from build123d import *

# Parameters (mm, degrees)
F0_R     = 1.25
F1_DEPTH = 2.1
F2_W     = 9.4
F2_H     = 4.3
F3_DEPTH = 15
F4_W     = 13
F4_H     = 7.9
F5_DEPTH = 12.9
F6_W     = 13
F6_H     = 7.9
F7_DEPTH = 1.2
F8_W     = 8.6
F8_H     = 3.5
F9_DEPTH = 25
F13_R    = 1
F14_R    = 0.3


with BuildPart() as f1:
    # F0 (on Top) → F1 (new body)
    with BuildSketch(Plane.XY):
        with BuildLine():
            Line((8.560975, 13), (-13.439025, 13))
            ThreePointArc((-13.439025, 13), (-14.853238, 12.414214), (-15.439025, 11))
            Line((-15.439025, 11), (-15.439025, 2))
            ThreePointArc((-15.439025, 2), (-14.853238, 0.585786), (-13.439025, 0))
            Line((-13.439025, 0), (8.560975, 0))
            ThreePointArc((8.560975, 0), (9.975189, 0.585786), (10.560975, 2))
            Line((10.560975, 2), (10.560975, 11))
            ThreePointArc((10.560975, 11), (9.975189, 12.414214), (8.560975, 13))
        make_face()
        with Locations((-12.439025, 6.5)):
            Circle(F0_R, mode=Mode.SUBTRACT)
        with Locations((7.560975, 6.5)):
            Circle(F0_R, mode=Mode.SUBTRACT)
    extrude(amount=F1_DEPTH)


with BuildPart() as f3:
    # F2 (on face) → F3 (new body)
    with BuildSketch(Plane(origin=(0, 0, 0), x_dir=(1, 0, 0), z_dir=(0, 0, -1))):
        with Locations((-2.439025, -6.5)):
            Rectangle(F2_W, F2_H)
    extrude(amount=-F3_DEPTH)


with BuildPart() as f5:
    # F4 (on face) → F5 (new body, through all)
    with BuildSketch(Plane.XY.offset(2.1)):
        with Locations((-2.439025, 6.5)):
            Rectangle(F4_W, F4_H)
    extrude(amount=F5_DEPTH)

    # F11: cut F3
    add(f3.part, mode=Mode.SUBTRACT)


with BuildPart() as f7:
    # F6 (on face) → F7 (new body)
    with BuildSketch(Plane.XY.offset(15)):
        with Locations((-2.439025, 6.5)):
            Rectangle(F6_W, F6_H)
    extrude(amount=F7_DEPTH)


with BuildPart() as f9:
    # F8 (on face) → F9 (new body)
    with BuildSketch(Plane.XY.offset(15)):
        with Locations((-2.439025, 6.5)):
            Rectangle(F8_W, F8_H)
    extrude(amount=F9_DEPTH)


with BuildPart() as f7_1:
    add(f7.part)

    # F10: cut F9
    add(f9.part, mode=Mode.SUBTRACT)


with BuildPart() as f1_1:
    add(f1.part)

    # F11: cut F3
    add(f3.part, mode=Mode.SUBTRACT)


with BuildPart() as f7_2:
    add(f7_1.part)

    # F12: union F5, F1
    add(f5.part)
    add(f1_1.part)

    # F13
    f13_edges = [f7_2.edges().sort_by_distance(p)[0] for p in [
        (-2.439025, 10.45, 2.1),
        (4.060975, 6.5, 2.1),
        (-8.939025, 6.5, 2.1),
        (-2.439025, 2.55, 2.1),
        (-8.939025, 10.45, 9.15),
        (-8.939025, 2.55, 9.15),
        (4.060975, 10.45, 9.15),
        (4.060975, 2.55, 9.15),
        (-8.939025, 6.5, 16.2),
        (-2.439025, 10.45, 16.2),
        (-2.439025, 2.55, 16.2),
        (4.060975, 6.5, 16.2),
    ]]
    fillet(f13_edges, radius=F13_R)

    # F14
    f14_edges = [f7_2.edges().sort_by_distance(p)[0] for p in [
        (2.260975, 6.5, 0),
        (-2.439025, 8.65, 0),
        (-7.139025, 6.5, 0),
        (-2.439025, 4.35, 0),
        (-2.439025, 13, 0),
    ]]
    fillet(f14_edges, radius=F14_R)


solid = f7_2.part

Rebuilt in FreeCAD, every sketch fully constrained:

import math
import FreeCAD as App
import Part
import Sketcher
from FreeCAD import Vector
Q = App.Units.Quantity


def edges_at(feature, points):
    """Names of the edges that pass closest to the given points."""
    edges = feature.Shape.Edges
    near = lambda p: min(range(len(edges)), key=lambda i: edges[i].distToShape(Part.Vertex(*p))[0])
    return sorted({f"Edge{near(p) + 1}" for p in points})

doc = App.newDocument("Part")
params = doc.addObject("Spreadsheet::Sheet", "Params")
for row, (alias, value) in enumerate([
    ("sketch1_radius", "2 mm"),
    ("sketch1_diameter", "2.5 mm"),
    ("sketch1_width", "22 mm"),
    ("sketch1_height", "9 mm"),
    ("pad1_length", "2.1 mm"),
    ("sketch2_width", "9.4 mm"),
    ("sketch2_height", "4.3 mm"),
    ("pad2_length", "15 mm"),
    ("sketch3_width", "13 mm"),
    ("sketch3_height", "7.9 mm"),
    ("pad3_length", "12.9 mm"),
    ("sketch4_width", "13 mm"),
    ("sketch4_height", "7.9 mm"),
    ("pad4_length", "1.2 mm"),
    ("sketch5_width", "8.6 mm"),
    ("sketch5_height", "3.5 mm"),
    ("pad5_length", "25 mm"),
    ("fillet_radius", "1 mm"),
    ("fillet2_radius", "0.3 mm"),
], start=1):
    params.set(f"A{row}", alias)
    params.set(f"B{row}", "=" + value)
    params.setAlias(f"B{row}", alias)

body = doc.addObject("PartDesign::Body", "Body")

# Sketch on XY plane
sketch1 = body.newObject("Sketcher::SketchObject", "Sketch")
sketch1.AttachmentSupport = (doc.getObject("XY_Plane"), [""])
sketch1.MapMode = "FlatFace"
sketch1.addGeometry(Part.LineSegment(Vector(8.560975, 13, 0), Vector(-13.439025, 13, 0)), False)
sketch1.addGeometry(Part.ArcOfCircle(Part.Circle(Vector(-13.439025, 11, 0), Vector(0, 0, 1), 2), math.radians(90.000006), math.radians(179.999994)), False)
sketch1.addGeometry(Part.LineSegment(Vector(-15.439025, 11, 0), Vector(-15.439025, 2, 0)), False)
sketch1.addGeometry(Part.ArcOfCircle(Part.Circle(Vector(-13.439025, 2, 0), Vector(0, 0, 1), 2), math.radians(-179.999994), math.radians(-90.000006)), False)
sketch1.addGeometry(Part.LineSegment(Vector(-13.439025, 0, 0), Vector(8.560975, 0, 0)), False)
sketch1.addGeometry(Part.ArcOfCircle(Part.Circle(Vector(8.560976, 1.999999, 0), Vector(0, 0, 1), 1.999999), math.radians(-90.000043), math.radians(0.000043)), False)
sketch1.addGeometry(Part.LineSegment(Vector(10.560975, 2, 0), Vector(10.560975, 11, 0)), False)
sketch1.addGeometry(Part.ArcOfCircle(Part.Circle(Vector(8.560976, 11.000001, 0), Vector(0, 0, 1), 1.999999), math.radians(-0.000043), math.radians(90.000043)), False)
sketch1.addGeometry(Part.Circle(Vector(-12.439025, 6.5, 0), Vector(0, 0, 1), 1.25), False)
sketch1.addGeometry(Part.Circle(Vector(7.560975, 6.5, 0), Vector(0, 0, 1), 1.25), False)
sketch1.addConstraint(Sketcher.Constraint("Tangent", 0, 2, 1, 1))
sketch1.addConstraint(Sketcher.Constraint("Tangent", 1, 2, 2, 1))
sketch1.addConstraint(Sketcher.Constraint("Tangent", 2, 2, 3, 1))
sketch1.addConstraint(Sketcher.Constraint("Tangent", 3, 2, 4, 1))
sketch1.addConstraint(Sketcher.Constraint("Tangent", 4, 2, 5, 1))
sketch1.addConstraint(Sketcher.Constraint("Tangent", 5, 2, 6, 1))
sketch1.addConstraint(Sketcher.Constraint("Tangent", 6, 2, 7, 1))
sketch1.addConstraint(Sketcher.Constraint("Tangent", 7, 2, 0, 1))
sketch1.addConstraint(Sketcher.Constraint("Horizontal", 0))
sketch1.addConstraint(Sketcher.Constraint("Vertical", 2))
sketch1.addConstraint(Sketcher.Constraint("Horizontal", 4))
sketch1.addConstraint(Sketcher.Constraint("Vertical", 6))
sketch1.addConstraint(Sketcher.Constraint("Equal", 1, 3))
sketch1.addConstraint(Sketcher.Constraint("Equal", 3, 5))
sketch1.addConstraint(Sketcher.Constraint("Equal", 5, 7))
sketch1.addConstraint(Sketcher.Constraint("Equal", 8, 9))
sketch1.addConstraint(Sketcher.Constraint("PointOnObject", 3, 2, -1))
sketch1.addConstraint(Sketcher.Constraint("Horizontal", 8, 3, 9, 3))
sketch1.addConstraint(Sketcher.Constraint("Radius", 1, Q("2 mm")))
sketch1.addConstraint(Sketcher.Constraint("Diameter", 8, Q("2.5 mm")))
sketch1.addConstraint(Sketcher.Constraint("DistanceX", 0, 2, 0, 1, Q("22 mm")))
sketch1.addConstraint(Sketcher.Constraint("DistanceY", 2, 2, 2, 1, Q("9 mm")))
sketch1.addConstraint(Sketcher.Constraint("DistanceX", 1, 3, 8, 3, Q("1 mm")))
sketch1.addConstraint(Sketcher.Constraint("DistanceX", 9, 3, 7, 3, Q("1.000001 mm")))
sketch1.addConstraint(Sketcher.Constraint("DistanceY", -1, 1, 8, 3, Q("6.5 mm")))
sketch1.addConstraint(Sketcher.Constraint("DistanceX", 1, 3, -1, 1, Q("13.439025 mm")))
sketch1.setExpression("Constraints[18]", "Params.sketch1_radius")
sketch1.setExpression("Constraints[19]", "Params.sketch1_diameter")
sketch1.setExpression("Constraints[20]", "Params.sketch1_width")
sketch1.setExpression("Constraints[21]", "Params.sketch1_height")
pad1 = body.newObject("PartDesign::Pad", "Pad")
pad1.Profile = sketch1
pad1.setExpression("Length", "Params.pad1_length")
body2 = doc.addObject("PartDesign::Body", "Body001")

# Sketch on XY plane
sketch2 = body2.newObject("Sketcher::SketchObject", "Sketch001")
sketch2.AttachmentSupport = (doc.getObject("XY_Plane001"), [""])
sketch2.MapMode = "FlatFace"
sketch2.addGeometry(Part.LineSegment(Vector(-7.139025, 4.35, 0), Vector(-7.139025, 8.65, 0)), False)
sketch2.addGeometry(Part.LineSegment(Vector(-7.139025, 8.65, 0), Vector(2.260975, 8.65, 0)), False)
sketch2.addGeometry(Part.LineSegment(Vector(2.260975, 8.65, 0), Vector(2.260975, 4.35, 0)), False)
sketch2.addGeometry(Part.LineSegment(Vector(2.260975, 4.35, 0), Vector(-7.139025, 4.35, 0)), False)
sketch2.addConstraint(Sketcher.Constraint("Coincident", 0, 2, 1, 1))
sketch2.addConstraint(Sketcher.Constraint("Coincident", 1, 2, 2, 1))
sketch2.addConstraint(Sketcher.Constraint("Coincident", 2, 2, 3, 1))
sketch2.addConstraint(Sketcher.Constraint("Coincident", 3, 2, 0, 1))
sketch2.addConstraint(Sketcher.Constraint("Vertical", 0))
sketch2.addConstraint(Sketcher.Constraint("Horizontal", 1))
sketch2.addConstraint(Sketcher.Constraint("Vertical", 2))
sketch2.addConstraint(Sketcher.Constraint("Horizontal", 3))
sketch2.addConstraint(Sketcher.Constraint("DistanceX", 1, 1, 1, 2, Q("9.4 mm")))
sketch2.addConstraint(Sketcher.Constraint("DistanceY", 0, 1, 0, 2, Q("4.3 mm")))
sketch2.addConstraint(Sketcher.Constraint("DistanceY", -1, 1, 0, 2, Q("8.65 mm")))
sketch2.addConstraint(Sketcher.Constraint("DistanceX", 0, 2, -1, 1, Q("7.139025 mm")))
sketch2.setExpression("Constraints[8]", "Params.sketch2_width")
sketch2.setExpression("Constraints[9]", "Params.sketch2_height")
pad2 = body2.newObject("PartDesign::Pad", "Pad001")
pad2.Profile = sketch2
pad2.setExpression("Length", "Params.pad2_length")
body3 = doc.addObject("PartDesign::Body", "Body002")

# Sketch on XY plane
sketch3 = body3.newObject("Sketcher::SketchObject", "Sketch002")
sketch3.AttachmentSupport = (doc.getObject("XY_Plane002"), [""])
sketch3.MapMode = "FlatFace"
sketch3.AttachmentOffset = App.Placement(Vector(0, 0, 2.1), App.Rotation())
sketch3.addGeometry(Part.LineSegment(Vector(-8.939025, 10.45, 0), Vector(-8.939025, 2.55, 0)), False)
sketch3.addGeometry(Part.LineSegment(Vector(-8.939025, 2.55, 0), Vector(4.060975, 2.55, 0)), False)
sketch3.addGeometry(Part.LineSegment(Vector(4.060975, 2.55, 0), Vector(4.060975, 10.45, 0)), False)
sketch3.addGeometry(Part.LineSegment(Vector(4.060975, 10.45, 0), Vector(-8.939025, 10.45, 0)), False)
sketch3.addConstraint(Sketcher.Constraint("Coincident", 0, 2, 1, 1))
sketch3.addConstraint(Sketcher.Constraint("Coincident", 1, 2, 2, 1))
sketch3.addConstraint(Sketcher.Constraint("Coincident", 2, 2, 3, 1))
sketch3.addConstraint(Sketcher.Constraint("Coincident", 3, 2, 0, 1))
sketch3.addConstraint(Sketcher.Constraint("Vertical", 0))
sketch3.addConstraint(Sketcher.Constraint("Horizontal", 1))
sketch3.addConstraint(Sketcher.Constraint("Vertical", 2))
sketch3.addConstraint(Sketcher.Constraint("Horizontal", 3))
sketch3.addConstraint(Sketcher.Constraint("DistanceX", 1, 1, 1, 2, Q("13 mm")))
sketch3.addConstraint(Sketcher.Constraint("DistanceY", 0, 2, 0, 1, Q("7.9 mm")))
sketch3.addConstraint(Sketcher.Constraint("DistanceY", -1, 1, 0, 2, Q("2.55 mm")))
sketch3.addConstraint(Sketcher.Constraint("DistanceX", 0, 2, -1, 1, Q("8.939025 mm")))
sketch3.setExpression("Constraints[8]", "Params.sketch3_width")
sketch3.setExpression("Constraints[9]", "Params.sketch3_height")
pad3 = body3.newObject("PartDesign::Pad", "Pad002")
pad3.Profile = sketch3
pad3.setExpression("Length", "Params.pad3_length")
doc.recompute()

body4 = doc.addObject("PartDesign::Body", "Body003")
body4.BaseFeature = body2
boolean = body3.newObject("PartDesign::Boolean", "Boolean")
boolean.Type = "Cut"
boolean.addObjects([body4])
doc.recompute()
body5 = doc.addObject("PartDesign::Body", "Body004")

# Sketch on XY plane
sketch4 = body5.newObject("Sketcher::SketchObject", "Sketch003")
sketch4.AttachmentSupport = (doc.getObject("XY_Plane004"), [""])
sketch4.MapMode = "FlatFace"
sketch4.AttachmentOffset = App.Placement(Vector(0, 0, 15), App.Rotation())
sketch4.addGeometry(Part.LineSegment(Vector(-8.939025, 10.45, 0), Vector(-8.939025, 2.55, 0)), False)
sketch4.addGeometry(Part.LineSegment(Vector(-8.939025, 2.55, 0), Vector(4.060975, 2.55, 0)), False)
sketch4.addGeometry(Part.LineSegment(Vector(4.060975, 2.55, 0), Vector(4.060975, 10.45, 0)), False)
sketch4.addGeometry(Part.LineSegment(Vector(4.060975, 10.45, 0), Vector(-8.939025, 10.45, 0)), False)
sketch4.addConstraint(Sketcher.Constraint("Coincident", 0, 2, 1, 1))
sketch4.addConstraint(Sketcher.Constraint("Coincident", 1, 2, 2, 1))
sketch4.addConstraint(Sketcher.Constraint("Coincident", 2, 2, 3, 1))
sketch4.addConstraint(Sketcher.Constraint("Coincident", 3, 2, 0, 1))
sketch4.addConstraint(Sketcher.Constraint("Vertical", 0))
sketch4.addConstraint(Sketcher.Constraint("Horizontal", 1))
sketch4.addConstraint(Sketcher.Constraint("Vertical", 2))
sketch4.addConstraint(Sketcher.Constraint("Horizontal", 3))
sketch4.addConstraint(Sketcher.Constraint("DistanceX", 1, 1, 1, 2, Q("13 mm")))
sketch4.addConstraint(Sketcher.Constraint("DistanceY", 0, 2, 0, 1, Q("7.9 mm")))
sketch4.addConstraint(Sketcher.Constraint("DistanceY", -1, 1, 0, 2, Q("2.55 mm")))
sketch4.addConstraint(Sketcher.Constraint("DistanceX", 0, 2, -1, 1, Q("8.939025 mm")))
sketch4.setExpression("Constraints[8]", "Params.sketch4_width")
sketch4.setExpression("Constraints[9]", "Params.sketch4_height")
pad4 = body5.newObject("PartDesign::Pad", "Pad003")
pad4.Profile = sketch4
pad4.setExpression("Length", "Params.pad4_length")
body6 = doc.addObject("PartDesign::Body", "Body005")

# Sketch on XY plane
sketch5 = body6.newObject("Sketcher::SketchObject", "Sketch004")
sketch5.AttachmentSupport = (doc.getObject("XY_Plane005"), [""])
sketch5.MapMode = "FlatFace"
sketch5.AttachmentOffset = App.Placement(Vector(0, 0, 15), App.Rotation())
sketch5.addGeometry(Part.LineSegment(Vector(-6.739025, 8.25, 0), Vector(-6.739025, 4.75, 0)), False)
sketch5.addGeometry(Part.LineSegment(Vector(-6.739025, 4.75, 0), Vector(1.860975, 4.75, 0)), False)
sketch5.addGeometry(Part.LineSegment(Vector(1.860975, 4.75, 0), Vector(1.860975, 8.25, 0)), False)
sketch5.addGeometry(Part.LineSegment(Vector(1.860975, 8.25, 0), Vector(-6.739025, 8.25, 0)), False)
sketch5.addConstraint(Sketcher.Constraint("Coincident", 0, 2, 1, 1))
sketch5.addConstraint(Sketcher.Constraint("Coincident", 1, 2, 2, 1))
sketch5.addConstraint(Sketcher.Constraint("Coincident", 2, 2, 3, 1))
sketch5.addConstraint(Sketcher.Constraint("Coincident", 3, 2, 0, 1))
sketch5.addConstraint(Sketcher.Constraint("Vertical", 0))
sketch5.addConstraint(Sketcher.Constraint("Horizontal", 1))
sketch5.addConstraint(Sketcher.Constraint("Vertical", 2))
sketch5.addConstraint(Sketcher.Constraint("Horizontal", 3))
sketch5.addConstraint(Sketcher.Constraint("DistanceX", 1, 1, 1, 2, Q("8.6 mm")))
sketch5.addConstraint(Sketcher.Constraint("DistanceY", 0, 2, 0, 1, Q("3.5 mm")))
sketch5.addConstraint(Sketcher.Constraint("DistanceY", -1, 1, 0, 2, Q("4.75 mm")))
sketch5.addConstraint(Sketcher.Constraint("DistanceX", 0, 2, -1, 1, Q("6.739025 mm")))
sketch5.setExpression("Constraints[8]", "Params.sketch5_width")
sketch5.setExpression("Constraints[9]", "Params.sketch5_height")
pad5 = body6.newObject("PartDesign::Pad", "Pad004")
pad5.Profile = sketch5
pad5.setExpression("Length", "Params.pad5_length")
doc.recompute()

boolean2 = body5.newObject("PartDesign::Boolean", "Boolean001")
boolean2.Type = "Cut"
boolean2.addObjects([body6])
doc.recompute()

boolean3 = body.newObject("PartDesign::Boolean", "Boolean002")
boolean3.Type = "Cut"
boolean3.addObjects([body2])
doc.recompute()

boolean4 = body5.newObject("PartDesign::Boolean", "Boolean003")
boolean4.Type = "Fuse"
boolean4.addObjects([body3])
doc.recompute()

boolean5 = body5.newObject("PartDesign::Boolean", "Boolean004")
boolean5.Type = "Fuse"
boolean5.addObjects([body])
doc.recompute()

fillet = body5.newObject("PartDesign::Fillet", "Fillet")
fillet.Base = (boolean5, edges_at(boolean5, [
    (-2.439, 10.45, 2.1),
    (4.061, 6.5, 2.1),
    (-8.939, 6.5, 2.1),
    (-2.439, 2.55, 2.1),
    (-8.939, 10.45, 9.15),
    (-8.939, 2.55, 9.15),
    (4.061, 10.45, 9.15),
    (4.061, 2.55, 9.15),
    (-8.939, 6.5, 16.2),
    (-2.439, 10.45, 16.2),
    (-2.439, 2.55, 16.2),
    (4.061, 6.5, 16.2),
]))
fillet.setExpression("Radius", "Params.fillet_radius")
doc.recompute()

fillet2 = body5.newObject("PartDesign::Fillet", "Fillet001")
fillet2.Base = (fillet, edges_at(fillet, [
    (2.261, 6.5, 0),
    (-2.439, 8.65, 0),
    (-7.139, 6.5, 0),
    (-2.439, 4.35, 0),
    (-2.439, 13, 0),
]))
fillet2.setExpression("Radius", "Params.fillet2_radius")

doc.recompute()
